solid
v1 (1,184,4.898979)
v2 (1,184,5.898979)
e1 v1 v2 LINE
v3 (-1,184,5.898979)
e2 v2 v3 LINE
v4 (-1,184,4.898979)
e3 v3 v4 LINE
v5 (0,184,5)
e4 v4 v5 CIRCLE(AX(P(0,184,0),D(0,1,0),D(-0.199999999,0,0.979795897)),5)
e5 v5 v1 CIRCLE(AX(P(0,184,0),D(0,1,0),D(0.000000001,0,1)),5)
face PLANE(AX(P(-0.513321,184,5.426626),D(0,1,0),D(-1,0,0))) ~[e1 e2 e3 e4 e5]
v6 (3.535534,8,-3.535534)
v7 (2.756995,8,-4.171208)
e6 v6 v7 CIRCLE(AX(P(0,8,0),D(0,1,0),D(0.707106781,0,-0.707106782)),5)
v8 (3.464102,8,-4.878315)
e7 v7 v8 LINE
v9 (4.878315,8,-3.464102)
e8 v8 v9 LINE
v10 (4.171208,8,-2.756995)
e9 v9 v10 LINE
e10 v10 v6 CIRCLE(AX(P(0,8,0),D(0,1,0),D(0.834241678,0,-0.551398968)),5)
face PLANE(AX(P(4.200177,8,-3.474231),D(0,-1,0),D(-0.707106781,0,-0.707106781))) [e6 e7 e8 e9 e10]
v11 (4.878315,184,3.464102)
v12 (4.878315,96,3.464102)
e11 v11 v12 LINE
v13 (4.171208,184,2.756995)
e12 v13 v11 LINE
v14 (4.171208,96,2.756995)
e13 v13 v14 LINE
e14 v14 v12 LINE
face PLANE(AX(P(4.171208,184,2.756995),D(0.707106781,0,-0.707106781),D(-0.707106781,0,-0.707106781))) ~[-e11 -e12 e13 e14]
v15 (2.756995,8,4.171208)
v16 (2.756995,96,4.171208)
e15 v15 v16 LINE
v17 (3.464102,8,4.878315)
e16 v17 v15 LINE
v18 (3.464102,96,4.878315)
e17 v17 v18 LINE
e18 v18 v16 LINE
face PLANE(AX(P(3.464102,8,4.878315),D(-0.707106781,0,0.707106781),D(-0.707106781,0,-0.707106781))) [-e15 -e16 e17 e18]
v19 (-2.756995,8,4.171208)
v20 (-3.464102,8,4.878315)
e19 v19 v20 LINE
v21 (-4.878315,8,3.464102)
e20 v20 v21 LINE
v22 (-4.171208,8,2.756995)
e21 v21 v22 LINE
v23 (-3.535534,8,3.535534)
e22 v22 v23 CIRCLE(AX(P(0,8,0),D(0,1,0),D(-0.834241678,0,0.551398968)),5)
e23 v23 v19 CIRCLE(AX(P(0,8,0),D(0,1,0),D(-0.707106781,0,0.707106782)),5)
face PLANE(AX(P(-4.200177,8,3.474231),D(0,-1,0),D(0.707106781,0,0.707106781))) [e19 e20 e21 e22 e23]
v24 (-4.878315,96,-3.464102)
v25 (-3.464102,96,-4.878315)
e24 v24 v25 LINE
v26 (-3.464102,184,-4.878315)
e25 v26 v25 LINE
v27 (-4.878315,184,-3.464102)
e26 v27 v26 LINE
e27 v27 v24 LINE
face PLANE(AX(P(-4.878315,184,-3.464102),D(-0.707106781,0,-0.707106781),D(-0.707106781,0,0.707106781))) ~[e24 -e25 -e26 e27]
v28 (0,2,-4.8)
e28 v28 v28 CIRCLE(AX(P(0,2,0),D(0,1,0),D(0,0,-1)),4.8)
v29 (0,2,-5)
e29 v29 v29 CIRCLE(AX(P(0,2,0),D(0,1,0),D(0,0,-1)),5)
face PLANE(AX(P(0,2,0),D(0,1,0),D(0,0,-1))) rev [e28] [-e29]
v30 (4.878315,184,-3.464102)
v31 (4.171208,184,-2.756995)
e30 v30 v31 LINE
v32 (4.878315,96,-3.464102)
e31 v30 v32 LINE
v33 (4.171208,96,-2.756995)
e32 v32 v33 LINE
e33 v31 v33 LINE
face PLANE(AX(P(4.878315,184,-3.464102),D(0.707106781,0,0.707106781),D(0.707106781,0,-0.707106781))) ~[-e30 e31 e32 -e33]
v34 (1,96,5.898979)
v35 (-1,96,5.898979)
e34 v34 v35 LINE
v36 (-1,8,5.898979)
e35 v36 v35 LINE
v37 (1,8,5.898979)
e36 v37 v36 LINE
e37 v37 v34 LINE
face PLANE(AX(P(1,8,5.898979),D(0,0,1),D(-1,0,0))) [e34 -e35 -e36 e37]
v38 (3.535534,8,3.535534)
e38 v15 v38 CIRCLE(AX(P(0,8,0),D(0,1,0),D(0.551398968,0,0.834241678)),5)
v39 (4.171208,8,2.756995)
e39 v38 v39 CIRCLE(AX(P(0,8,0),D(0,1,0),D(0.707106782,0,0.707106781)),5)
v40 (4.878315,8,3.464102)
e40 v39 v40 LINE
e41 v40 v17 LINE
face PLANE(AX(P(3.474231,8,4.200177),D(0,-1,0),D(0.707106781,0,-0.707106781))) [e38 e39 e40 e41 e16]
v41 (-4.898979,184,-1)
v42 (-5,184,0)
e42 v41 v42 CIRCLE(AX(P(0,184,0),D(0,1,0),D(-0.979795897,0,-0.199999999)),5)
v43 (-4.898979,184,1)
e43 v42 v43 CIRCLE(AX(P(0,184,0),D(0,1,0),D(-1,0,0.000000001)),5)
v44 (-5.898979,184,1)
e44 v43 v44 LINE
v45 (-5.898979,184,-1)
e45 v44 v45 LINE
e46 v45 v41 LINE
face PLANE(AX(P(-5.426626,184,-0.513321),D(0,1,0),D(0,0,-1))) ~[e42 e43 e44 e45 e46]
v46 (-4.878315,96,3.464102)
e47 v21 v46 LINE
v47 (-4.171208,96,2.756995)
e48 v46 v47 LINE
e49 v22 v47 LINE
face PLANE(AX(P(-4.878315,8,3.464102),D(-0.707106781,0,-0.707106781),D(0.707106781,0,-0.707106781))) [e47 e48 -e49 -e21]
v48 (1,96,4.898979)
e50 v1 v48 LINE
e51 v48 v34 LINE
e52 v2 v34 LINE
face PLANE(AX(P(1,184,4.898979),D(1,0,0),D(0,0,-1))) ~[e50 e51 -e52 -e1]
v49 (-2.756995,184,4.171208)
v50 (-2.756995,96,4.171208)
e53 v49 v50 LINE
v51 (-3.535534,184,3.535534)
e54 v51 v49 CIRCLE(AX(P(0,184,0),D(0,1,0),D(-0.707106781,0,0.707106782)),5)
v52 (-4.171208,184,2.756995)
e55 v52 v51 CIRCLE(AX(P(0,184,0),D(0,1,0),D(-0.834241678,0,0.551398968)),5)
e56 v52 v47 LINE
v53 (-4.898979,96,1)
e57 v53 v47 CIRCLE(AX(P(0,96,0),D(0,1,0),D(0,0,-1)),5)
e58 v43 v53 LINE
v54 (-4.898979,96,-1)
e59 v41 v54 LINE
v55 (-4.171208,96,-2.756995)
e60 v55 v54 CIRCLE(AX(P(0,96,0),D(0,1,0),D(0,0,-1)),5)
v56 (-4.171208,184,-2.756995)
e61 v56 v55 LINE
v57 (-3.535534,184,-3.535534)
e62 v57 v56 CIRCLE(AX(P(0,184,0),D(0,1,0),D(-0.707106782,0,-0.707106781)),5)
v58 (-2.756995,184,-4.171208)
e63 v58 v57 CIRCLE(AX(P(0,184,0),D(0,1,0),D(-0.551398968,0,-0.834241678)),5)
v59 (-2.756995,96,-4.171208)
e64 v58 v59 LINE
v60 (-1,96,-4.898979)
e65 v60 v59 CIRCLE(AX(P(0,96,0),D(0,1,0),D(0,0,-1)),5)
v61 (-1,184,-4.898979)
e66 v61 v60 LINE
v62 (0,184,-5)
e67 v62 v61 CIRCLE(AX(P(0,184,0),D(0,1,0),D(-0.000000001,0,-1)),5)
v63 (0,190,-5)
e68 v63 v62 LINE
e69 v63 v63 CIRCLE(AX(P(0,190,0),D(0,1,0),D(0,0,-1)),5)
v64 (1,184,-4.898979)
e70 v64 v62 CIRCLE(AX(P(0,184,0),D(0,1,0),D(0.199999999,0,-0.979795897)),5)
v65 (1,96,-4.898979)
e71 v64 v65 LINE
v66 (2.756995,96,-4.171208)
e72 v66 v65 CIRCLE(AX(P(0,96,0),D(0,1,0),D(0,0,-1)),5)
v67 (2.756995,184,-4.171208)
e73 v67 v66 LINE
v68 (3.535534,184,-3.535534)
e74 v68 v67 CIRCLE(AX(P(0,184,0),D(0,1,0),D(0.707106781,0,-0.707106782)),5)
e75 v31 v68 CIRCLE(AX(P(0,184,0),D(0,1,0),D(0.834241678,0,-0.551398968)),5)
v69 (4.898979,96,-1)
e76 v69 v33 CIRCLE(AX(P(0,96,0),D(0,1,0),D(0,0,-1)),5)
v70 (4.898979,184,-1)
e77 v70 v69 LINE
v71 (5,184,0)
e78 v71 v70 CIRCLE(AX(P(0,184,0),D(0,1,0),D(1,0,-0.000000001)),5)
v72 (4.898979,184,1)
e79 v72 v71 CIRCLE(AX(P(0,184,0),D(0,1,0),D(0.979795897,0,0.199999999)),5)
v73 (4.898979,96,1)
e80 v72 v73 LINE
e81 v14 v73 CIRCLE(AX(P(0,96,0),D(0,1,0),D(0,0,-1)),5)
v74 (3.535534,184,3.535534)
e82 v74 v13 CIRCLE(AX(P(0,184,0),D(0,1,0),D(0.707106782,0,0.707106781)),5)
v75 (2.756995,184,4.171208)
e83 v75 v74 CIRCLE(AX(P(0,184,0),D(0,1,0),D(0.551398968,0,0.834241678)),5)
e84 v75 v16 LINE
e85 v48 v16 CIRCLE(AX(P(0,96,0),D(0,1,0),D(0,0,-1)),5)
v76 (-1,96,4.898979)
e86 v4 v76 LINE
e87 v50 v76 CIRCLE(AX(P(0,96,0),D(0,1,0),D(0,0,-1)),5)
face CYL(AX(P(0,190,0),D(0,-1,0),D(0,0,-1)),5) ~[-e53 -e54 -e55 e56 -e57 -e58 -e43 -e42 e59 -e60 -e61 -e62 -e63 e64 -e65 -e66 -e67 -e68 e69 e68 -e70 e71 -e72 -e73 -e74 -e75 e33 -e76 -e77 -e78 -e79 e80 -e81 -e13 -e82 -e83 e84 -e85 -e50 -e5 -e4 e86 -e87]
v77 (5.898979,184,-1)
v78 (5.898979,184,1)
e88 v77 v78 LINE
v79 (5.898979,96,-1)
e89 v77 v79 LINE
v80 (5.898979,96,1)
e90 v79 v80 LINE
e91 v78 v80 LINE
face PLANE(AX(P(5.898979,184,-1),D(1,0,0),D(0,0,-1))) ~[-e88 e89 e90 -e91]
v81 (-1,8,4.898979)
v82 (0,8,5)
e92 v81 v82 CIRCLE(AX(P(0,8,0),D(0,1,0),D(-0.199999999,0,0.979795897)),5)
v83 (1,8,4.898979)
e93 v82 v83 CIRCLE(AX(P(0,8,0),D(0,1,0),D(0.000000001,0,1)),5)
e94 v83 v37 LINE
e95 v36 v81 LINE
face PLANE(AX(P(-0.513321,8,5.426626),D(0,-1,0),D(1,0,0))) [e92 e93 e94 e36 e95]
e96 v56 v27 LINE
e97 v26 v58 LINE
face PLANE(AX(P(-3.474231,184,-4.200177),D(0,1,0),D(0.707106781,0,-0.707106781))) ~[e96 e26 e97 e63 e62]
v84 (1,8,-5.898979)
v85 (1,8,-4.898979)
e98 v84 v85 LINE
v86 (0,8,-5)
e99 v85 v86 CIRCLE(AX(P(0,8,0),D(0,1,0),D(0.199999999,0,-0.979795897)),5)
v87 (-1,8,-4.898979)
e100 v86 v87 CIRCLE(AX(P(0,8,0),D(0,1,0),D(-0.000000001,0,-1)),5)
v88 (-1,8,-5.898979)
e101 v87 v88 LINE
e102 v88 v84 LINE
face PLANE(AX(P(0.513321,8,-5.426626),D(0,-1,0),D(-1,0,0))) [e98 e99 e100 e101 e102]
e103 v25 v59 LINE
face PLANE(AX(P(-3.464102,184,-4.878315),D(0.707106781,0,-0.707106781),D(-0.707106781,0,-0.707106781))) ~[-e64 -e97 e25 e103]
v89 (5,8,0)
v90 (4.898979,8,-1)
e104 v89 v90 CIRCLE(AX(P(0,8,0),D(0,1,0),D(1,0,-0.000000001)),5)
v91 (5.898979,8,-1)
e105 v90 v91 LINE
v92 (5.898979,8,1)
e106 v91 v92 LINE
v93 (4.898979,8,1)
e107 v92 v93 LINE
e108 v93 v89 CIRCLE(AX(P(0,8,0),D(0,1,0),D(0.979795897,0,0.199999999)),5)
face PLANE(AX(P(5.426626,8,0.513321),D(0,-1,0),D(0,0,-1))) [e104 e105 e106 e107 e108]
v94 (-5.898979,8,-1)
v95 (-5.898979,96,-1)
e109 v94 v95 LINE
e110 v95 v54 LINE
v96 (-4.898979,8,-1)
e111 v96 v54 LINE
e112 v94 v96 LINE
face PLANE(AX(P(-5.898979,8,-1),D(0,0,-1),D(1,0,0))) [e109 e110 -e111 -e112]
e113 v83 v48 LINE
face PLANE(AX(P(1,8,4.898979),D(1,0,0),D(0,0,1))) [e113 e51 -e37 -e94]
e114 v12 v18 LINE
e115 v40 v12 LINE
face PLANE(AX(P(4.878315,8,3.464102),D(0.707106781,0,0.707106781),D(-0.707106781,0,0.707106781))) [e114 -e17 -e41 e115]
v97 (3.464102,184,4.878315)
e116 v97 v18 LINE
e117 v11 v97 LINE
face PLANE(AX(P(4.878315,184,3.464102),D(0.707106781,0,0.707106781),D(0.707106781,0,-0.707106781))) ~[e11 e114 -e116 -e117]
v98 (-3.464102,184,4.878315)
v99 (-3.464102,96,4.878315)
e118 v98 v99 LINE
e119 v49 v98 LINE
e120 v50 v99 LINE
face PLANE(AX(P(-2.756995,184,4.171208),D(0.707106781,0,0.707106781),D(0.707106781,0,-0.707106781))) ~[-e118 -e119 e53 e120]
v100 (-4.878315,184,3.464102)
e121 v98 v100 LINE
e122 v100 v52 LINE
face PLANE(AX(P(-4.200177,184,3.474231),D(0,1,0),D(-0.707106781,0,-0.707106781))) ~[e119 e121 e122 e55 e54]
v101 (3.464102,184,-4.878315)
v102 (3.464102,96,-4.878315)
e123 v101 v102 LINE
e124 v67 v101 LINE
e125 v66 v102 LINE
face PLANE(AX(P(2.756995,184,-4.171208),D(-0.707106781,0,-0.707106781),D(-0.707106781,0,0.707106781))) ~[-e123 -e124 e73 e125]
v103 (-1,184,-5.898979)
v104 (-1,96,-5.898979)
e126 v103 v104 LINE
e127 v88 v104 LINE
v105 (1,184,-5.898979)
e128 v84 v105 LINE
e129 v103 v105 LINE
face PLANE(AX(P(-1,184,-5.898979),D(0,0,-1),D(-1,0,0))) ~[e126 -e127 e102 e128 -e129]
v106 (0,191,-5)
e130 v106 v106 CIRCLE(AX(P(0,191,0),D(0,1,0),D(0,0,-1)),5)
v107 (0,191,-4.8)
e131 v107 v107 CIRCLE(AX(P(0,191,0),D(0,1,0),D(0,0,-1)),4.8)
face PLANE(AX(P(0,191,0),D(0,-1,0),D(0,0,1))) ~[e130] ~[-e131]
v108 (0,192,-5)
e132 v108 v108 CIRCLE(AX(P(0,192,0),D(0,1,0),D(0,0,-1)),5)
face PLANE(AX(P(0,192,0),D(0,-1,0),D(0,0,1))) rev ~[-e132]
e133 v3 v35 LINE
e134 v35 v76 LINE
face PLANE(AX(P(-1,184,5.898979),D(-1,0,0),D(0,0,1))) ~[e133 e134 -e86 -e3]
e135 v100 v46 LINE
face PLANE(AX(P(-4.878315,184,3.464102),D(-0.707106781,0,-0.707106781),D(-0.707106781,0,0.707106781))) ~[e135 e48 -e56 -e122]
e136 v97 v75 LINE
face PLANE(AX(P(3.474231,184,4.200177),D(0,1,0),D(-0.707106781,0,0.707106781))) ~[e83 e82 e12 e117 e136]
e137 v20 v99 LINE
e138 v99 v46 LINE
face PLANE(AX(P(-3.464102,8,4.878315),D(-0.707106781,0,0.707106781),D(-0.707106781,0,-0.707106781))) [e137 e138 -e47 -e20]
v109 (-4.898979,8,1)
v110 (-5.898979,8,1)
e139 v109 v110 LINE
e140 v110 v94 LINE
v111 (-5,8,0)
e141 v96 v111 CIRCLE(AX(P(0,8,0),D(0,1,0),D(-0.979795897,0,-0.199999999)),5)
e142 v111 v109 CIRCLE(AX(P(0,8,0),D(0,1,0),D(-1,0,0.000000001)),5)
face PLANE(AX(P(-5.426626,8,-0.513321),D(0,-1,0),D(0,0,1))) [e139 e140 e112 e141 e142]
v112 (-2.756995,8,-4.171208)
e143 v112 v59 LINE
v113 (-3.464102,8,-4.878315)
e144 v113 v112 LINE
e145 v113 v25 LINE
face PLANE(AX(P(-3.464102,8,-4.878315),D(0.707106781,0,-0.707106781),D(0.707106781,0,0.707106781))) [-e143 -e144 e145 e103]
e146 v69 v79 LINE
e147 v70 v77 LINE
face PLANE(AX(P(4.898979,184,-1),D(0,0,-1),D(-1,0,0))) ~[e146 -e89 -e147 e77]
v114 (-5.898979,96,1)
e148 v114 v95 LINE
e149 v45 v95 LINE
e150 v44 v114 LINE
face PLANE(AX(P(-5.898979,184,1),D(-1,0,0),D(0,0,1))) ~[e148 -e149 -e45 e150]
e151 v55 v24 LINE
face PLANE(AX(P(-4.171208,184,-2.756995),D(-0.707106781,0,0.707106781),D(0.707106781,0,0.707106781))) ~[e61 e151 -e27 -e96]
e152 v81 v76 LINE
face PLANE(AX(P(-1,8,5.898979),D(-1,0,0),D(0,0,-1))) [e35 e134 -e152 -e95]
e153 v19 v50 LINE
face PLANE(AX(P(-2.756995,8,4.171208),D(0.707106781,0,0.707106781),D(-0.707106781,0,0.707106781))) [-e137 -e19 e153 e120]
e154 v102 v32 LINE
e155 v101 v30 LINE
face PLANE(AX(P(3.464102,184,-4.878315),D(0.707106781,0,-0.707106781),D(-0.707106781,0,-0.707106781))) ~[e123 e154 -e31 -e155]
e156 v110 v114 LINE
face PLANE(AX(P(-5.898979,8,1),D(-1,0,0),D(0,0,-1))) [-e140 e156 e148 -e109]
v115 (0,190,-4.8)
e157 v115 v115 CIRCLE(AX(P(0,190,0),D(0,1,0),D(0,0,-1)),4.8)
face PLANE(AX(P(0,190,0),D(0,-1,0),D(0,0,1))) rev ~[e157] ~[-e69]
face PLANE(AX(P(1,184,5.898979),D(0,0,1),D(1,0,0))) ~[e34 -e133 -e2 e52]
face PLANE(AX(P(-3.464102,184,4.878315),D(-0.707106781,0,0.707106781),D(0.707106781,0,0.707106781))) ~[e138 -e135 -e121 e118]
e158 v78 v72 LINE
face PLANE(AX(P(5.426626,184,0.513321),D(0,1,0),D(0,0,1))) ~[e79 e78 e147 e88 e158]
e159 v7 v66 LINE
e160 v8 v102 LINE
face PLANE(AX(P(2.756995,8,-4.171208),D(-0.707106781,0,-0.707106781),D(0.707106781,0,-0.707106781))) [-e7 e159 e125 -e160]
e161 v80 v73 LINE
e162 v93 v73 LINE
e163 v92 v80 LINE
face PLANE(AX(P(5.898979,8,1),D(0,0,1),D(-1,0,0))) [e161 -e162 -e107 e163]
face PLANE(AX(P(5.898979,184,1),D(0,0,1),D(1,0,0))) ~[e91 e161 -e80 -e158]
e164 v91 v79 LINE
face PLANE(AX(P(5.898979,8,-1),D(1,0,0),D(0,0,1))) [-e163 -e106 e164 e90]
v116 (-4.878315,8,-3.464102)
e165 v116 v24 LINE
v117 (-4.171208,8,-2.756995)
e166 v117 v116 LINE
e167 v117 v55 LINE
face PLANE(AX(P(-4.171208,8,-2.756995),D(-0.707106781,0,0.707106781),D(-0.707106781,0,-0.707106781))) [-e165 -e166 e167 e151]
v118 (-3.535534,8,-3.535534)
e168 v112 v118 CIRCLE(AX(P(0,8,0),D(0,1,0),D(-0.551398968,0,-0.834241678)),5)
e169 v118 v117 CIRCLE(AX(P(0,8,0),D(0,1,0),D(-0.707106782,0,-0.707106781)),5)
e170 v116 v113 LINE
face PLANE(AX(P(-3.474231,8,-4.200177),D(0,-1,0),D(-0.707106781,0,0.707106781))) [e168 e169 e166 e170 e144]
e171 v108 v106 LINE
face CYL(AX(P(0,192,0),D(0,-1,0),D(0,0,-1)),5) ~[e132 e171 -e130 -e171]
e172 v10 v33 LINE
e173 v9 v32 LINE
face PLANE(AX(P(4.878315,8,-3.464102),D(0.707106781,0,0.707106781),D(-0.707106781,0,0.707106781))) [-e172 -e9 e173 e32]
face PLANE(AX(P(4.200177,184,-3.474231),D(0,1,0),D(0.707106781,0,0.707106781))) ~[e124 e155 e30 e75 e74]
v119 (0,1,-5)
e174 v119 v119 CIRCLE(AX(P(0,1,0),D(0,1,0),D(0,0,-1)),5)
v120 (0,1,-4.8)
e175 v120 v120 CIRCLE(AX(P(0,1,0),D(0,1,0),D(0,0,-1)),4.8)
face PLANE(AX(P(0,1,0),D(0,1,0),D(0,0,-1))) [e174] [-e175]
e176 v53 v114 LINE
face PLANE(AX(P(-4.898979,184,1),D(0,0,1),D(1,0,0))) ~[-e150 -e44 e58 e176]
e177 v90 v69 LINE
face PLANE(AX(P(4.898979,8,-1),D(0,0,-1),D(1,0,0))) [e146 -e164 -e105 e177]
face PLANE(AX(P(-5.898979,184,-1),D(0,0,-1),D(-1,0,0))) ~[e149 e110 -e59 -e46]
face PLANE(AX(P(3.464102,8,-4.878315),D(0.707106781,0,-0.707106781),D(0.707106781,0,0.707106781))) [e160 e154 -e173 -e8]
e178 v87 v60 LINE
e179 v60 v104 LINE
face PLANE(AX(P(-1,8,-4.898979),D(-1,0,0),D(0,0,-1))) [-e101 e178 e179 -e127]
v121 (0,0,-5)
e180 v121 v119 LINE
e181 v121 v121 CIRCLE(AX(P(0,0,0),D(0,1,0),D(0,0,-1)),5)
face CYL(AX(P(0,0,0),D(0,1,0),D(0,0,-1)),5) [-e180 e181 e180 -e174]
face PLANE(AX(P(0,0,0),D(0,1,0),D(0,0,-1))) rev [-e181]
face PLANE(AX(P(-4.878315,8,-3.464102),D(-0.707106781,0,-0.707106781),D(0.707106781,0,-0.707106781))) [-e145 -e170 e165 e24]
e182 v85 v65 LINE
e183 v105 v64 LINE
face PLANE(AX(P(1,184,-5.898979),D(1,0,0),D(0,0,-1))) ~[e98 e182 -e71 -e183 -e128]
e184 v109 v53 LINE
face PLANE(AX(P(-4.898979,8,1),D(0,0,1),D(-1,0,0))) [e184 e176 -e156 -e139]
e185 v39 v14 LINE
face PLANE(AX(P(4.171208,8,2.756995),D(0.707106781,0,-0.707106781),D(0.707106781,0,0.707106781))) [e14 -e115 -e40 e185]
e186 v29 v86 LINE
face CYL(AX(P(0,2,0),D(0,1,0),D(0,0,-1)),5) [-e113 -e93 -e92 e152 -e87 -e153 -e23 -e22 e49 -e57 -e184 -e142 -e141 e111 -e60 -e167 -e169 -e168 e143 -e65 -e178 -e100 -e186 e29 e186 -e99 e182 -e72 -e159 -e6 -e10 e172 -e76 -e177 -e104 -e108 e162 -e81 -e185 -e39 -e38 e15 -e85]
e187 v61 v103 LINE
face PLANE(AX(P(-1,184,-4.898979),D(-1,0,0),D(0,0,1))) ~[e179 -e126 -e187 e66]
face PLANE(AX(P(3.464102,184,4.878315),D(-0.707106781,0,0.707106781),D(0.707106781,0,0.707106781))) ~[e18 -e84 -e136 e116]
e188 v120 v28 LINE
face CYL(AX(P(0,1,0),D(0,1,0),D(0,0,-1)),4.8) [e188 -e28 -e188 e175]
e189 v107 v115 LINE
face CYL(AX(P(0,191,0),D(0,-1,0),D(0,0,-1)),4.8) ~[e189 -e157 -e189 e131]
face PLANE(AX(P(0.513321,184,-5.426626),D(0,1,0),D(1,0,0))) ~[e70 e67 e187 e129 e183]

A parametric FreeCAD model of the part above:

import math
import FreeCAD as App
import Part
import Sketcher
from FreeCAD import Vector
Q = App.Units.Quantity

doc = App.newDocument("Part")
body = doc.addObject("PartDesign::Body", "Body")

sketch1 = body.newObject("Sketcher::SketchObject", "Sketch")
sketch1.AttachmentSupport = (doc.getObject("YZ_Plane"), [""])
sketch1.MapMode = "FlatFace"
sketch1.addGeometry([
    Part.LineSegment(Vector(96, -5, 0), Vector(96, 0, 0)),
    Part.LineSegment(Vector(96, 0, 0), Vector(0, 0, 0)),
    Part.LineSegment(Vector(0, 0, 0), Vector(0, -5, 0)),
    Part.LineSegment(Vector(0, -5, 0), Vector(1, -5, 0)),
    Part.LineSegment(Vector(1, -5, 0), Vector(1, -4.8, 0)),
    Part.LineSegment(Vector(1, -4.8, 0), Vector(2, -4.8, 0)),
    Part.LineSegment(Vector(2, -4.8, 0), Vector(2, -5, 0)),
    Part.LineSegment(Vector(2, -5, 0), Vector(96, -5, 0)),
], False)
sketch1.addConstraint([
    Sketcher.Constraint("Coincident", 0, 2, 1, 1),
    Sketcher.Constraint("Coincident", 1, 2, 2, 1),
    Sketcher.Constraint("Coincident", 2, 2, 3, 1),
    Sketcher.Constraint("Coincident", 3, 2, 4, 1),
    Sketcher.Constraint("Coincident", 4, 2, 5, 1),
    Sketcher.Constraint("Coincident", 5, 2, 6, 1),
    Sketcher.Constraint("Coincident", 6, 2, 7, 1),
    Sketcher.Constraint("Coincident", 7, 2, 0, 1),
    Sketcher.Constraint("Vertical", 0),
    Sketcher.Constraint("Horizontal", 1),
    Sketcher.Constraint("Vertical", 2),
    Sketcher.Constraint("Horizontal", 3),
    Sketcher.Constraint("Vertical", 4),
    Sketcher.Constraint("Horizontal", 5),
    Sketcher.Constraint("Vertical", 6),
    Sketcher.Constraint("Horizontal", 7),
    Sketcher.Constraint("Coincident", 1, 2, -1, 1),
    Sketcher.Constraint("Horizontal", 3, 2, 6, 2),
    Sketcher.Constraint("Equal", 3, 5),
    Sketcher.Constraint("DistanceX", 1, 2, 1, 1, Q("96 mm")),
    Sketcher.Constraint("DistanceX", 3, 1, 3, 2, Q("1 mm")),
    Sketcher.Constraint("DistanceY", 0, 1, 0, 2, Q("5 mm")),
    Sketcher.Constraint("DistanceY", 4, 1, 4, 2, Q("0.2 mm")),
])
revolution = body.newObject("PartDesign::Revolution", "Revolution")
revolution.Profile = sketch1
revolution.ReferenceAxis = (sketch1, ["H_Axis"])
revolution.Angle = 360

sketch2 = body.newObject("Sketcher::SketchObject", "Sketch001")
sketch2.AttachmentSupport = (doc.getObject("XZ_Plane"), [""])
sketch2.MapMode = "FlatFace"
sketch2.AttachmentOffset = App.Placement(Vector(0, 0, -8), App.Rotation())
sketch2.addGeometry([
    Part.LineSegment(Vector(-1, 5.9, 0), Vector(-1, 4.9, 0)),
    Part.ArcOfCircle(Part.Circle(Vector(0, 0, 0), Vector(0, 0, 1), 5), math.radians(90), math.radians(101.54)),
    Part.ArcOfCircle(Part.Circle(Vector(0, 0, 0), Vector(0, 0, 1), 5), math.radians(78.46), math.radians(90)),
    Part.LineSegment(Vector(1, 4.9, 0), Vector(1, 5.9, 0)),
    Part.LineSegment(Vector(1, 5.9, 0), Vector(-1, 5.9, 0)),
], False)
sketch2.addConstraint([
    Sketcher.Constraint("Coincident", 0, 2, 1, 2),
    Sketcher.Constraint("Tangent", 1, 1, 2, 2),
    Sketcher.Constraint("Coincident", 2, 1, 3, 1),
    Sketcher.Constraint("Coincident", 3, 2, 4, 1),
    Sketcher.Constraint("Coincident", 4, 2, 0, 1),
    Sketcher.Constraint("Vertical", 0),
    Sketcher.Constraint("Vertical", 3),
    Sketcher.Constraint("Horizontal", 4),
    Sketcher.Constraint("Coincident", 1, 3, -1, 1),
    Sketcher.Constraint("Equal", 1, 2),
    Sketcher.Constraint("PointOnObject", 1, 1, -2),
    Sketcher.Constraint("Horizontal", 0, 2, 2, 1),
    Sketcher.Constraint("Radius", 1, Q("5 mm")),
    Sketcher.Constraint("DistanceX", 4, 2, 4, 1, Q("2 mm")),
    Sketcher.Constraint("DistanceY", 0, 2, 0, 1, Q("1 mm")),
])
pad1 = body.newObject("PartDesign::Pad", "Pad")
pad1.Profile = sketch2
pad1.Length = 88
pad1.Reversed = True
doc.recompute()

polarpattern = body.newObject("PartDesign::PolarPattern", "PolarPattern")
polarpattern.Originals = [pad1]
polarpattern.Axis = (doc.getObject("Y_Axis"), [""])
polarpattern.Angle = 360
polarpattern.Occurrences = 8
body.Tip = polarpattern
body2 = doc.addObject("PartDesign::Body", "Body001")
doc.recompute()

body2.BaseFeature = body
doc.recompute()

mirroring = doc.addObject("Part::Mirroring", "Mirroring")
mirroring.Source = body
mirroring.Base = Vector(0, 96, 0)
mirroring.Normal = Vector(0, -1, 0)
body3 = doc.addObject("PartDesign::Body", "Body002")
body3.BaseFeature = mirroring
boolean = body2.newObject("PartDesign::Boolean", "Boolean")
boolean.Type = "Fuse"
boolean.addObjects([body3])
doc.recompute()
mirroring.Visibility = False

doc.recompute()
